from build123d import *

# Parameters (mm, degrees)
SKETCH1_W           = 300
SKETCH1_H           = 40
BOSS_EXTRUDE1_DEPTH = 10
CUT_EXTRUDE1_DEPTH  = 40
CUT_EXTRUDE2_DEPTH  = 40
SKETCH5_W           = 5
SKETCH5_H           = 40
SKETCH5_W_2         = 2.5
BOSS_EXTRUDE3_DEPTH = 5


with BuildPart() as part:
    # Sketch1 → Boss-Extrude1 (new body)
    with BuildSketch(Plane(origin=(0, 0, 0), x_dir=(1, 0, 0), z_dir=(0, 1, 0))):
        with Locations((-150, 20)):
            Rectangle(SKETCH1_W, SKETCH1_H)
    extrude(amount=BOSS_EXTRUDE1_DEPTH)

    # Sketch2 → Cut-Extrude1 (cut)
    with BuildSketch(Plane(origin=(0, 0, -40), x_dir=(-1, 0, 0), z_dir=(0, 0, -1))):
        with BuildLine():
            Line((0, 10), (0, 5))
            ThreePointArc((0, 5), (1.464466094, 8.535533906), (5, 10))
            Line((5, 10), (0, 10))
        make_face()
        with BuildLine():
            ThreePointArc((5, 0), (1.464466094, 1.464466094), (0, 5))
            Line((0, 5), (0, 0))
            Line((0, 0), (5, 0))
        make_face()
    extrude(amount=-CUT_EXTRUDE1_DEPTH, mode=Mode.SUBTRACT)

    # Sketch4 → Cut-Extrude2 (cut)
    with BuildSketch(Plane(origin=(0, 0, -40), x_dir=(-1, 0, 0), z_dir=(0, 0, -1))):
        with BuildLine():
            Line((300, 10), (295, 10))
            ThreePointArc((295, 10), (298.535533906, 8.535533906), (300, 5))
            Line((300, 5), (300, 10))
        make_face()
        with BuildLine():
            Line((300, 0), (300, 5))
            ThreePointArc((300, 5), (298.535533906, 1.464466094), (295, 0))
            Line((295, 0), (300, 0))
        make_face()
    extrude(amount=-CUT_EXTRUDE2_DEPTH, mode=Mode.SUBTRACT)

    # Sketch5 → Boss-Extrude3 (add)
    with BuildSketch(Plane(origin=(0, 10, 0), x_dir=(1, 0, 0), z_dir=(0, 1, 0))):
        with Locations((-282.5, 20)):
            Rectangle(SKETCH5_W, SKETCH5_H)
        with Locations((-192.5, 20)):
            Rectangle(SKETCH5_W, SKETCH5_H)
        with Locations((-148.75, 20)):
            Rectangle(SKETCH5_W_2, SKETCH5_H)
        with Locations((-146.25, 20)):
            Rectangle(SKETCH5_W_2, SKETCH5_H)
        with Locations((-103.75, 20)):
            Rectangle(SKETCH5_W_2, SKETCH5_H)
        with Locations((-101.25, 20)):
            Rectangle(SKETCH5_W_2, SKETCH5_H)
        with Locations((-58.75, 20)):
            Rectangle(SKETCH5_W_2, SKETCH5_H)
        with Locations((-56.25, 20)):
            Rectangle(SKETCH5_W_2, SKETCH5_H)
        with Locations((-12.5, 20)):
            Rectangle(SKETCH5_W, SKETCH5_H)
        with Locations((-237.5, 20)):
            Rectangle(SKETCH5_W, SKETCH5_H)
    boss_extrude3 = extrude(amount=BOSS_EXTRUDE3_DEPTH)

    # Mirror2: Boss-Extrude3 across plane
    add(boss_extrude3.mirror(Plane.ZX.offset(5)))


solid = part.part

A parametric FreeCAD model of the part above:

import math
import FreeCAD as App
import Part
import Sketcher
from FreeCAD import Vector

doc = App.newDocument("Part")
body = doc.addObject("PartDesign::Body", "Body")

sketch1 = body.newObject("Sketcher::SketchObject", "Sketch")
sketch1.AttachmentSupport = (doc.getObject("XZ_Plane"), [""])
sketch1.MapMode = "FlatFace"
sketch1.addGeometry(Part.LineSegment(Vector(-300, -40, 0), Vector(-300, 0, 0)), False)
sketch1.addGeometry(Part.LineSegment(Vector(-300, 0, 0), Vector(0, 0, 0)), False)
sketch1.addGeometry(Part.LineSegment(Vector(0, 0, 0), Vector(0, -40, 0)), False)
sketch1.addGeometry(Part.LineSegment(Vector(0, -40, 0), Vector(-300, -40, 0)), False)
sketch1.addConstraint(Sketcher.Constraint("Coincident", 0, 2, 1, 1))
sketch1.addConstraint(Sketcher.Constraint("Coincident", 1, 2, 2, 1))
sketch1.addConstraint(Sketcher.Constraint("Coincident", 2, 2, 3, 1))
sketch1.addConstraint(Sketcher.Constraint("Coincident", 3, 2, 0, 1))
sketch1.addConstraint(Sketcher.Constraint("Vertical", 0))
sketch1.addConstraint(Sketcher.Constraint("Horizontal", 1))
sketch1.addConstraint(Sketcher.Constraint("Vertical", 2))
sketch1.addConstraint(Sketcher.Constraint("Horizontal", 3))
sketch1.addConstraint(Sketcher.Constraint("Coincident", 1, 2, -1, 1))
sketch1.addConstraint(Sketcher.Constraint("DistanceX", 1, 1, 1, 2, 300.0))
sketch1.addConstraint(Sketcher.Constraint("DistanceY", 0, 1, 0, 2, 40.0))
pad1 = body.newObject("PartDesign::Pad", "Pad")
pad1.Profile = sketch1
pad1.Length = 10
pad1.Reversed = True

sketch2 = body.newObject("Sketcher::SketchObject", "Sketch001")
sketch2.AttachmentSupport = (doc.getObject("XY_Plane"), [""])
sketch2.MapMode = "FlatFace"
sketch2.AttachmentOffset = App.Placement(Vector(0, 0, -40), App.Rotation())
sketch2.addGeometry(Part.LineSegment(Vector(0, 10, 0), Vector(0, 5, 0)), False)
sketch2.addGeometry(Part.ArcOfCircle(Part.Circle(Vector(-5, 5, 0), Vector(0, 0, 1), 5), math.radians(0), math.radians(90)), False)
sketch2.addGeometry(Part.LineSegment(Vector(-5, 10, 0), Vector(0, 10, 0)), False)
sketch2.addGeometry(Part.ArcOfCircle(Part.Circle(Vector(-5, 5, 0), Vector(0, 0, 1), 5), math.radians(-90), math.radians(0)), False)
sketch2.addGeometry(Part.LineSegment(Vector(0, 5, 0), Vector(0, 0, 0)), False)
sketch2.addGeometry(Part.LineSegment(Vector(0, 0, 0), Vector(-5, 0, 0)), False)
sketch2.addConstraint(Sketcher.Constraint("Tangent", 0, 2, 1, 1))
sketch2.addConstraint(Sketcher.Constraint("Tangent", 1, 2, 2, 1))
sketch2.addConstraint(Sketcher.Constraint("Coincident", 2, 2, 0, 1))
sketch2.addConstraint(Sketcher.Constraint("Tangent", 3, 2, 4, 1))
sketch2.addConstraint(Sketcher.Constraint("Coincident", 4, 2, 5, 1))
sketch2.addConstraint(Sketcher.Constraint("Tangent", 5, 2, 3, 1))
sketch2.addConstraint(Sketcher.Constraint("Vertical", 0))
sketch2.addConstraint(Sketcher.Constraint("Horizontal", 2))
sketch2.addConstraint(Sketcher.Constraint("Vertical", 4))
sketch2.addConstraint(Sketcher.Constraint("Horizontal", 5))
sketch2.addConstraint(Sketcher.Constraint("Coincident", 4, 2, -1, 1))
sketch2.addConstraint(Sketcher.Constraint("Coincident", 3, 3, 1, 3))
sketch2.addConstraint(Sketcher.Constraint("Equal", 1, 3))
sketch2.addConstraint(Sketcher.Constraint("Radius", 1, 5.0))
pocket1 = body.newObject("PartDesign::Pocket", "Pocket")
pocket1.Profile = sketch2
pocket1.Length = 40
pocket1.Reversed = True

sketch3 = body.newObject("Sketcher::SketchObject", "Sketch002")
sketch3.AttachmentSupport = (doc.getObject("XY_Plane"), [""])
sketch3.MapMode = "FlatFace"
sketch3.AttachmentOffset = App.Placement(Vector(0, 0, -40), App.Rotation())
sketch3.addGeometry(Part.LineSegment(Vector(-300, 10, 0), Vector(-295, 10, 0)), False)
sketch3.addGeometry(Part.ArcOfCircle(Part.Circle(Vector(-295, 5, 0), Vector(0, 0, 1), 5), math.radians(90), math.radians(180)), False)
sketch3.addGeometry(Part.LineSegment(Vector(-300, 5, 0), Vector(-300, 10, 0)), False)
sketch3.addGeometry(Part.LineSegment(Vector(-300, 0, 0), Vector(-300, 5, 0)), False)
sketch3.addGeometry(Part.ArcOfCircle(Part.Circle(Vector(-295, 5, 0), Vector(0, 0, 1), 5), math.radians(180), math.radians(270)), False)
sketch3.addGeometry(Part.LineSegment(Vector(-295, 0, 0), Vector(-300, 0, 0)), False)
sketch3.addConstraint(Sketcher.Constraint("Tangent", 0, 2, 1, 1))
sketch3.addConstraint(Sketcher.Constraint("Tangent", 1, 2, 2, 1))
sketch3.addConstraint(Sketcher.Constraint("Coincident", 2, 2, 0, 1))
sketch3.addConstraint(Sketcher.Constraint("Tangent", 3, 2, 4, 1))
sketch3.addConstraint(Sketcher.Constraint("Tangent", 4, 2, 5, 1))
sketch3.addConstraint(Sketcher.Constraint("Coincident", 5, 2, 3, 1))
sketch3.addConstraint(Sketcher.Constraint("Horizontal", 0))
sketch3.addConstraint(Sketcher.Constraint("Vertical", 2))
sketch3.addConstraint(Sketcher.Constraint("Vertical", 3))
sketch3.addConstraint(Sketcher.Constraint("Horizontal", 5))
sketch3.addConstraint(Sketcher.Constraint("Coincident", 4, 3, 1, 3))
sketch3.addConstraint(Sketcher.Constraint("Equal", 1, 4))
sketch3.addConstraint(Sketcher.Constraint("PointOnObject", 4, 2, -1))
sketch3.addConstraint(Sketcher.Constraint("Radius", 1, 5.0))
sketch3.addConstraint(Sketcher.Constraint("DistanceX", 1, 3, -1, 1, 295.0))
pocket2 = body.newObject("PartDesign::Pocket", "Pocket001")
pocket2.Profile = sketch3
pocket2.Length = 40
pocket2.Reversed = True

sketch4 = body.newObject("Sketcher::SketchObject", "Sketch003")
sketch4.AttachmentSupport = (doc.getObject("XZ_Plane"), [""])
sketch4.MapMode = "FlatFace"
sketch4.AttachmentOffset = App.Placement(Vector(0, 0, -10), App.Rotation())
sketch4.addGeometry(Part.LineSegment(Vector(-285, -40, 0), Vector(-285, 0, 0)), False)
sketch4.addGeometry(Part.LineSegment(Vector(-285, 0, 0), Vector(-280, 0, 0)), False)
sketch4.addGeometry(Part.LineSegment(Vector(-280, 0, 0), Vector(-280, -40, 0)), False)
sketch4.addGeometry(Part.LineSegment(Vector(-280, -40, 0), Vector(-285, -40, 0)), False)
sketch4.addGeometry(Part.LineSegment(Vector(-195, -40, 0), Vector(-195, 0, 0)), False)
sketch4.addGeometry(Part.LineSegment(Vector(-195, 0, 0), Vector(-190, 0, 0)), False)
sketch4.addGeometry(Part.LineSegment(Vector(-190, 0, 0), Vector(-190, -40, 0)), False)
sketch4.addGeometry(Part.LineSegment(Vector(-190, -40, 0), Vector(-195, -40, 0)), False)
sketch4.addGeometry(Part.LineSegment(Vector(-150, -40, 0), Vector(-150, 0, 0)), False)
sketch4.addGeometry(Part.LineSegment(Vector(-150, 0, 0), Vector(-145, 0, 0)), False)
sketch4.addGeometry(Part.LineSegment(Vector(-145, 0, 0), Vector(-145, -40, 0)), False)
sketch4.addGeometry(Part.LineSegment(Vector(-145, -40, 0), Vector(-150, -40, 0)), False)
sketch4.addGeometry(Part.LineSegment(Vector(-105, -40, 0), Vector(-105, 0, 0)), False)
sketch4.addGeometry(Part.LineSegment(Vector(-105, 0, 0), Vector(-100, 0, 0)), False)
sketch4.addGeometry(Part.LineSegment(Vector(-100, 0, 0), Vector(-100, -40, 0)), False)
sketch4.addGeometry(Part.LineSegment(Vector(-100, -40, 0), Vector(-105, -40, 0)), False)
sketch4.addGeometry(Part.LineSegment(Vector(-60, -40, 0), Vector(-60, 0, 0)), False)
sketch4.addGeometry(Part.LineSegment(Vector(-60, 0, 0), Vector(-55, 0, 0)), False)
sketch4.addGeometry(Part.LineSegment(Vector(-55, 0, 0), Vector(-55, -40, 0)), False)
sketch4.addGeometry(Part.LineSegment(Vector(-55, -40, 0), Vector(-60, -40, 0)), False)
sketch4.addGeometry(Part.LineSegment(Vector(-15, -40, 0), Vector(-15, 0, 0)), False)
sketch4.addGeometry(Part.LineSegment(Vector(-15, 0, 0), Vector(-10, 0, 0)), False)
sketch4.addGeometry(Part.LineSegment(Vector(-10, 0, 0), Vector(-10, -40, 0)), False)
sketch4.addGeometry(Part.LineSegment(Vector(-10, -40, 0), Vector(-15, -40, 0)), False)
sketch4.addGeometry(Part.LineSegment(Vector(-240, -40, 0), Vector(-240, 0, 0)), False)
sketch4.addGeometry(Part.LineSegment(Vector(-240, 0, 0), Vector(-235, 0, 0)), False)
sketch4.addGeometry(Part.LineSegment(Vector(-235, 0, 0), Vector(-235, -40, 0)), False)
sketch4.addGeometry(Part.LineSegment(Vector(-235, -40, 0), Vector(-240, -40, 0)), False)
sketch4.addConstraint(Sketcher.Constraint("Coincident", 0, 2, 1, 1))
sketch4.addConstraint(Sketcher.Constraint("Coincident", 1, 2, 2, 1))
sketch4.addConstraint(Sketcher.Constraint("Coincident", 2, 2, 3, 1))
sketch4.addConstraint(Sketcher.Constraint("Coincident", 3, 2, 0, 1))
sketch4.addConstraint(Sketcher.Constraint("Coincident", 4, 2, 5, 1))
sketch4.addConstraint(Sketcher.Constraint("Coincident", 5, 2, 6, 1))
sketch4.addConstraint(Sketcher.Constraint("Coincident", 6, 2, 7, 1))
sketch4.addConstraint(Sketcher.Constraint("Coincident", 7, 2, 4, 1))
sketch4.addConstraint(Sketcher.Constraint("Coincident", 8, 2, 9, 1))
sketch4.addConstraint(Sketcher.Constraint("Coincident", 9, 2, 10, 1))
sketch4.addConstraint(Sketcher.Constraint("Coincident", 10, 2, 11, 1))
sketch4.addConstraint(Sketcher.Constraint("Coincident", 11, 2, 8, 1))
sketch4.addConstraint(Sketcher.Constraint("Coincident", 12, 2, 13, 1))
sketch4.addConstraint(Sketcher.Constraint("Coincident", 13, 2, 14, 1))
sketch4.addConstraint(Sketcher.Constraint("Coincident", 14, 2, 15, 1))
sketch4.addConstraint(Sketcher.Constraint("Coincident", 15, 2, 12, 1))
sketch4.addConstraint(Sketcher.Constraint("Coincident", 16, 2, 17, 1))
sketch4.addConstraint(Sketcher.Constraint("Coincident", 17, 2, 18, 1))
sketch4.addConstraint(Sketcher.Constraint("Coincident", 18, 2, 19, 1))
sketch4.addConstraint(Sketcher.Constraint("Coincident", 19, 2, 16, 1))
sketch4.addConstraint(Sketcher.Constraint("Coincident", 20, 2, 21, 1))
sketch4.addConstraint(Sketcher.Constraint("Coincident", 21, 2, 22, 1))
sketch4.addConstraint(Sketcher.Constraint("Coincident", 22, 2, 23, 1))
sketch4.addConstraint(Sketcher.Constraint("Coincident", 23, 2, 20, 1))
sketch4.addConstraint(Sketcher.Constraint("Coincident", 24, 2, 25, 1))
sketch4.addConstraint(Sketcher.Constraint("Coincident", 25, 2, 26, 1))
sketch4.addConstraint(Sketcher.Constraint("Coincident", 26, 2, 27, 1))
sketch4.addConstraint(Sketcher.Constraint("Coincident", 27, 2, 24, 1))
sketch4.addConstraint(Sketcher.Constraint("Vertical", 0))
sketch4.addConstraint(Sketcher.Constraint("Horizontal", 1))
sketch4.addConstraint(Sketcher.Constraint("Vertical", 2))
sketch4.addConstraint(Sketcher.Constraint("Horizontal", 3))
sketch4.addConstraint(Sketcher.Constraint("Vertical", 4))
sketch4.addConstraint(Sketcher.Constraint("Horizontal", 5))
sketch4.addConstraint(Sketcher.Constraint("Vertical", 6))
sketch4.addConstraint(Sketcher.Constraint("Horizontal", 7))
sketch4.addConstraint(Sketcher.Constraint("Vertical", 8))
sketch4.addConstraint(Sketcher.Constraint("Horizontal", 9))
sketch4.addConstraint(Sketcher.Constraint("Vertical", 10))
sketch4.addConstraint(Sketcher.Constraint("Horizontal", 11))
sketch4.addConstraint(Sketcher.Constraint("Vertical", 12))
sketch4.addConstraint(Sketcher.Constraint("Horizontal", 13))
sketch4.addConstraint(Sketcher.Constraint("Vertical", 14))
sketch4.addConstraint(Sketcher.Constraint("Horizontal", 15))
sketch4.addConstraint(Sketcher.Constraint("Vertical", 16))
sketch4.addConstraint(Sketcher.Constraint("Horizontal", 17))
sketch4.addConstraint(Sketcher.Constraint("Vertical", 18))
sketch4.addConstraint(Sketcher.Constraint("Horizontal", 19))
sketch4.addConstraint(Sketcher.Constraint("Vertical", 20))
sketch4.addConstraint(Sketcher.Constraint("Horizontal", 21))
sketch4.addConstraint(Sketcher.Constraint("Vertical", 22))
sketch4.addConstraint(Sketcher.Constraint("Horizontal", 23))
sketch4.addConstraint(Sketcher.Constraint("Vertical", 24))
sketch4.addConstraint(Sketcher.Constraint("Horizontal", 25))
sketch4.addConstraint(Sketcher.Constraint("Vertical", 26))
sketch4.addConstraint(Sketcher.Constraint("Horizontal", 27))
sketch4.addConstraint(Sketcher.Constraint("PointOnObject", 0, 2, -1))
sketch4.addConstraint(Sketcher.Constraint("PointOnObject", 4, 2, -1))
sketch4.addConstraint(Sketcher.Constraint("PointOnObject", 8, 2, -1))
sketch4.addConstraint(Sketcher.Constraint("PointOnObject", 12, 2, -1))
sketch4.addConstraint(Sketcher.Constraint("PointOnObject", 16, 2, -1))
sketch4.addConstraint(Sketcher.Constraint("PointOnObject", 20, 2, -1))
sketch4.addConstraint(Sketcher.Constraint("PointOnObject", 24, 2, -1))
sketch4.addConstraint(Sketcher.Constraint("Horizontal", 3, 2, 6, 2))
sketch4.addConstraint(Sketcher.Constraint("Horizontal", 7, 2, 10, 2))
sketch4.addConstraint(Sketcher.Constraint("Horizontal", 11, 2, 14, 2))
sketch4.addConstraint(Sketcher.Constraint("Horizontal", 15, 2, 18, 2))
sketch4.addConstraint(Sketcher.Constraint("Horizontal", 19, 2, 22, 2))
sketch4.addConstraint(Sketcher.Constraint("Horizontal", 23, 2, 26, 2))
sketch4.addConstraint(Sketcher.Constraint("Equal", 3, 5))
sketch4.addConstraint(Sketcher.Constraint("Equal", 7, 9))
sketch4.addConstraint(Sketcher.Constraint("Equal", 11, 13))
sketch4.addConstraint(Sketcher.Constraint("Equal", 15, 17))
sketch4.addConstraint(Sketcher.Constraint("Equal", 19, 21))
sketch4.addConstraint(Sketcher.Constraint("Equal", 23, 25))
sketch4.addConstraint(Sketcher.Constraint("DistanceX", 1, 1, 1, 2, 5.0))
sketch4.addConstraint(Sketcher.Constraint("DistanceY", 0, 1, 0, 2, 40.0))
sketch4.addConstraint(Sketcher.Constraint("DistanceX", 0, 2, -1, 1, 285.0))
sketch4.addConstraint(Sketcher.Constraint("DistanceX", 4, 2, -1, 1, 195.0))
sketch4.addConstraint(Sketcher.Constraint("DistanceX", 8, 2, -1, 1, 150.0))
sketch4.addConstraint(Sketcher.Constraint("DistanceX", 12, 2, -1, 1, 105.0))
sketch4.addConstraint(Sketcher.Constraint("DistanceX", 16, 2, -1, 1, 60.0))
sketch4.addConstraint(Sketcher.Constraint("DistanceX", 20, 2, -1, 1, 15.0))
sketch4.addConstraint(Sketcher.Constraint("DistanceX", 24, 2, -1, 1, 240.0))
pad2 = body.newObject("PartDesign::Pad", "Pad001")
pad2.Profile = sketch4
pad2.Length = 5
pad2.Reversed = True
doc.recompute()

datumplane = body.newObject("PartDesign::Plane", "DatumPlane")
datumplane.AttachmentSupport = (doc.getObject("XZ_Plane"), [""])
datumplane.MapMode = "FlatFace"
datumplane.AttachmentOffset = App.Placement(Vector(0, 0, -5), App.Rotation())
mirrored = body.newObject("PartDesign::Mirrored", "Mirrored")
mirrored.Originals = [pad2]
mirrored.MirrorPlane = (datumplane, [""])
body.Tip = mirrored

doc.recompute()
